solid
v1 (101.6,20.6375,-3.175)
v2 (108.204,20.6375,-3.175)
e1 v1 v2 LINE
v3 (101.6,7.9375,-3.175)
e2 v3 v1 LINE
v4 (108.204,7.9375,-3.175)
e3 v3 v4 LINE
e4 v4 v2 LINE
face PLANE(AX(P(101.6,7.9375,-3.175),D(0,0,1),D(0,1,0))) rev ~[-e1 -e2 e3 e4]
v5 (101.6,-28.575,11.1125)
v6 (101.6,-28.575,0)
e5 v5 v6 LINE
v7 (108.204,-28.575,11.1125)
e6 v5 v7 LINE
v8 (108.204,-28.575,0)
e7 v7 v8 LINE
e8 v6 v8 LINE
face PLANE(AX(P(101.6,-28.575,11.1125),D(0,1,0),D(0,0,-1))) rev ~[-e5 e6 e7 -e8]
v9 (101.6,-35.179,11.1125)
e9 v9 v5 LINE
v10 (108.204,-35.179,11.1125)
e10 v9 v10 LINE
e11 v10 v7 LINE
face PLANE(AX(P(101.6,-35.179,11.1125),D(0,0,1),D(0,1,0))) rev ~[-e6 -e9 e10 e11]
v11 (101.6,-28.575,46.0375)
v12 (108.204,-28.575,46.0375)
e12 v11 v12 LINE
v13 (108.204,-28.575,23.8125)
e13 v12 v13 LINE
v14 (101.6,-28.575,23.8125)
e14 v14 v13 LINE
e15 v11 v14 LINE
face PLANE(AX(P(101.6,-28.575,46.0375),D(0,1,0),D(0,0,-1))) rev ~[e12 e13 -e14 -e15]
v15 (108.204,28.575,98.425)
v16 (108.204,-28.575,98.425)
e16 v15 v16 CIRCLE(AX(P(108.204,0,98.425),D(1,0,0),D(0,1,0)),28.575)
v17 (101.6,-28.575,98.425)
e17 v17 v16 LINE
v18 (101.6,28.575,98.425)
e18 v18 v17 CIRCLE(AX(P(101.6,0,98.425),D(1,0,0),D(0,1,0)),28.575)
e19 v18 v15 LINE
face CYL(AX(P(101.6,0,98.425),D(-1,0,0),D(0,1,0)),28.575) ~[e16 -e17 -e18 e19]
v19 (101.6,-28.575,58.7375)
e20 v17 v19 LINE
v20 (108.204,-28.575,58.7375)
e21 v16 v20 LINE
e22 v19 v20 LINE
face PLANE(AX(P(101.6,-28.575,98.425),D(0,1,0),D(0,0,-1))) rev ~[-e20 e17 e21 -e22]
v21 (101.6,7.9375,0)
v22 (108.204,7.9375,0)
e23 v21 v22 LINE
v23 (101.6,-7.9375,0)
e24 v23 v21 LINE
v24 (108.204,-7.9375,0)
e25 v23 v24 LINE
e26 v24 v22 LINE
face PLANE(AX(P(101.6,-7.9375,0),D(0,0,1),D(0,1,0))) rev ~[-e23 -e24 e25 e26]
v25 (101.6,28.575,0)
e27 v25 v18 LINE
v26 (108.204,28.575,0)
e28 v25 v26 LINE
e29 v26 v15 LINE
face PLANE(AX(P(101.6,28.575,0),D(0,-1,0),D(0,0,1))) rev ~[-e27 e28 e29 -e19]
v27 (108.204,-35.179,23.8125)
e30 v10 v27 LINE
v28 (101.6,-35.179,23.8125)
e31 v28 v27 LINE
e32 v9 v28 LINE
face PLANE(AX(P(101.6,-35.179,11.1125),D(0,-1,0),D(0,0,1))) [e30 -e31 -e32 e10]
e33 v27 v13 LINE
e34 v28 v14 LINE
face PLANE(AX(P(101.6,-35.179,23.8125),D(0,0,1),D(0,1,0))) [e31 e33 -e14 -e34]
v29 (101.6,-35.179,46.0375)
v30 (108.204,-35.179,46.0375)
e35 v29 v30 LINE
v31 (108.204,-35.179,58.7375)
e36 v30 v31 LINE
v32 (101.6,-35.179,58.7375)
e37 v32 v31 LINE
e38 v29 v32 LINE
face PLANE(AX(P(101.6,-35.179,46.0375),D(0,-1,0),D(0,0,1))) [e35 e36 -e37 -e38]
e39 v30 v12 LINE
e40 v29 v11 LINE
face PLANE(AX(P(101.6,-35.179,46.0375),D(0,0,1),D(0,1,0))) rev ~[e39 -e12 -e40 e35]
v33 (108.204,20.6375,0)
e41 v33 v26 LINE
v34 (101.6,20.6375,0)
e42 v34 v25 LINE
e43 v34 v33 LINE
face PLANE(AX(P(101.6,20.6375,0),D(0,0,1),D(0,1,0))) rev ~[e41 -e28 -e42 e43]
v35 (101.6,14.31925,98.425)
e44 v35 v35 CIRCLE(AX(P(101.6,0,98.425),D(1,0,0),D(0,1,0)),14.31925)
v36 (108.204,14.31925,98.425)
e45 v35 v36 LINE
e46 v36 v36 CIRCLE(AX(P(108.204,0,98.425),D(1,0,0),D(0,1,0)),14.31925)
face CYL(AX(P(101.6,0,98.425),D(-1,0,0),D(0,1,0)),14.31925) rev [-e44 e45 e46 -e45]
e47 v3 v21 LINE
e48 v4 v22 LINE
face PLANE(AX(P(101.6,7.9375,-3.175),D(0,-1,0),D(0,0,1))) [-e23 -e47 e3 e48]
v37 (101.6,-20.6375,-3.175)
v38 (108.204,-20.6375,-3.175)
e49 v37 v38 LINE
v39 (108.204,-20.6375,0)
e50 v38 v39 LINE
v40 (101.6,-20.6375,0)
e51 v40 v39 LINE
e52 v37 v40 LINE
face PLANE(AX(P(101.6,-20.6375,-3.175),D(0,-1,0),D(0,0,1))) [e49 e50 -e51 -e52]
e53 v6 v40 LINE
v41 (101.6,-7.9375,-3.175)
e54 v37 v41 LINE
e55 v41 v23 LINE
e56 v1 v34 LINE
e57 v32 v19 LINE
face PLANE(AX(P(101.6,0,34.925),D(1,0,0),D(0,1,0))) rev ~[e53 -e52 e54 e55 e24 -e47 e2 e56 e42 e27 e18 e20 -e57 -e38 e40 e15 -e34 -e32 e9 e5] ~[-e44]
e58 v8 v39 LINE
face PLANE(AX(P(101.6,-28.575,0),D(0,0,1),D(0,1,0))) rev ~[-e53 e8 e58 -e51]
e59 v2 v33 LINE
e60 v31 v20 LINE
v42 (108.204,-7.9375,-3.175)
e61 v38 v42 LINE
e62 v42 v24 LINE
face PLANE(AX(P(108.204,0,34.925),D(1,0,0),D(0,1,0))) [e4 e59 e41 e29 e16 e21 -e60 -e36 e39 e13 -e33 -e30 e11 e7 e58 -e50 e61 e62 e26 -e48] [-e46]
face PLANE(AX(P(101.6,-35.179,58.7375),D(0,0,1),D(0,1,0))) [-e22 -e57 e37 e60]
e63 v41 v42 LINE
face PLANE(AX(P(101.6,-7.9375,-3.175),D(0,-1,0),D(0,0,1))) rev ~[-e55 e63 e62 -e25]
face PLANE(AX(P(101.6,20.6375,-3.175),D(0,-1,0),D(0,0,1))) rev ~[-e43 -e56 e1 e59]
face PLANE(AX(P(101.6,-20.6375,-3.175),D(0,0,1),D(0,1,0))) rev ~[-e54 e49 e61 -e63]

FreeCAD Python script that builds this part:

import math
import FreeCAD as App
import Part
import Sketcher
Q = App.Units.Quantity

doc = App.newDocument("Part")
body = doc.addObject("PartDesign::Body", "Body")

sketch1 = body.newObject("Sketcher::SketchObject", "Sketch")
sketch1.AttachmentSupport = (doc.getObject("YZ_Plane"), [""])
sketch1.MapMode = "FlatFace"
sketch1.AttachmentOffset = App.Placement(App.Vector(0, 0, 4 * 25.4), App.Rotation())
sketch1.addGeometry([
    Part.LineSegment(App.Vector(28.6, 0, 0), App.Vector(28.6, 98.4, 0)),
    Part.ArcOfCircle(Part.Circle(App.Vector(0, 98.4, 0), App.Vector(0, 0, 1), 28.6), math.radians(0), math.radians(180)),
    Part.LineSegment(App.Vector(-28.6, 98.4, 0), App.Vector(-28.6, 58.7, 0)),
    Part.LineSegment(App.Vector(-28.6, 58.7, 0), App.Vector(-35.2, 58.7, 0)),
    Part.LineSegment(App.Vector(-35.2, 58.7, 0), App.Vector(-35.2, 46, 0)),
    Part.LineSegment(App.Vector(-35.2, 46, 0), App.Vector(-28.6, 46, 0)),
    Part.LineSegment(App.Vector(-28.6, 46, 0), App.Vector(-28.6, 23.8, 0)),
    Part.LineSegment(App.Vector(-28.6, 23.8, 0), App.Vector(-35.2, 23.8, 0)),
    Part.LineSegment(App.Vector(-35.2, 23.8, 0), App.Vector(-35.2, 11.1, 0)),
    Part.LineSegment(App.Vector(-35.2, 11.1, 0), App.Vector(-28.6, 11.1, 0)),
    Part.LineSegment(App.Vector(-28.6, 11.1, 0), App.Vector(-28.6, 0, 0)),
    Part.LineSegment(App.Vector(-28.6, 0, 0), App.Vector(-20.6, 0, 0)),
    Part.LineSegment(App.Vector(-20.6, 0, 0), App.Vector(-20.6, -3.2, 0)),
    Part.LineSegment(App.Vector(-20.6, -3.2, 0), App.Vector(-7.9, -3.2, 0)),
    Part.LineSegment(App.Vector(-7.9, -3.2, 0), App.Vector(-7.9, 0, 0)),
    Part.LineSegment(App.Vector(-7.9, 0, 0), App.Vector(7.9, 0, 0)),
    Part.LineSegment(App.Vector(7.9, 0, 0), App.Vector(7.9, -3.2, 0)),
    Part.LineSegment(App.Vector(7.9, -3.2, 0), App.Vector(20.6, -3.2, 0)),
    Part.LineSegment(App.Vector(20.6, -3.2, 0), App.Vector(20.6, 0, 0)),
    Part.LineSegment(App.Vector(20.6, 0, 0), App.Vector(28.6, 0, 0)),
    Part.Circle(App.Vector(0, 98.4, 0), App.Vector(0, 0, 1), 14.3),
], False)
sketch1.addConstraint([
    Sketcher.Constraint("Tangent", 0, 2, 1, 1),
    Sketcher.Constraint("Tangent", 1, 2, 2, 1),
    Sketcher.Constraint("Coincident", 2, 2, 3, 1),
    Sketcher.Constraint("Coincident", 3, 2, 4, 1),
    Sketcher.Constraint("Coincident", 4, 2, 5, 1),
    Sketcher.Constraint("Coincident", 5, 2, 6, 1),
    Sketcher.Constraint("Coincident", 6, 2, 7, 1),
    Sketcher.Constraint("Coincident", 7, 2, 8, 1),
    Sketcher.Constraint("Coincident", 8, 2, 9, 1),
    Sketcher.Constraint("Coincident", 9, 2, 10, 1),
    Sketcher.Constraint("Coincident", 10, 2, 11, 1),
    Sketcher.Constraint("Coincident", 11, 2, 12, 1),
    Sketcher.Constraint("Coincident", 12, 2, 13, 1),
    Sketcher.Constraint("Coincident", 13, 2, 14, 1),
    Sketcher.Constraint("Coincident", 14, 2, 15, 1),
    Sketcher.Constraint("Coincident", 15, 2, 16, 1),
    Sketcher.Constraint("Coincident", 16, 2, 17, 1),
    Sketcher.Constraint("Coincident", 17, 2, 18, 1),
    Sketcher.Constraint("Coincident", 18, 2, 19, 1),
    Sketcher.Constraint("Coincident", 19, 2, 0, 1),
    Sketcher.Constraint("Vertical", 0),
    Sketcher.Constraint("Vertical", 2),
    Sketcher.Constraint("Horizontal", 3),
    Sketcher.Constraint("Vertical", 4),
    Sketcher.Constraint("Horizontal", 5),
    Sketcher.Constraint("Vertical", 6),
    Sketcher.Constraint("Horizontal", 7),
    Sketcher.Constraint("Vertical", 8),
    Sketcher.Constraint("Horizontal", 9),
    Sketcher.Constraint("Vertical", 10),
    Sketcher.Constraint("Horizontal", 11),
    Sketcher.Constraint("Vertical", 12),
    Sketcher.Constraint("Horizontal", 13),
    Sketcher.Constraint("Vertical", 14),
    Sketcher.Constraint("Horizontal", 15),
    Sketcher.Constraint("Vertical", 16),
    Sketcher.Constraint("Horizontal", 17),
    Sketcher.Constraint("Vertical", 18),
    Sketcher.Constraint("Horizontal", 19),
    Sketcher.Constraint("Coincident", 20, 3, 1, 3),
    Sketcher.Constraint("Symmetric", 14, 2, 15, 2, -1, 1),
    Sketcher.Constraint("Symmetric", 11, 2, 18, 2, -1, 1),
    Sketcher.Constraint("Symmetric", 10, 2, 19, 2, -2),
    Sketcher.Constraint("PointOnObject", 1, 3, -2),
    Sketcher.Constraint("Horizontal", 13, 2, 16, 2),
    Sketcher.Constraint("Vertical", 2, 2, 5, 2),
    Sketcher.Constraint("Vertical", 4, 2, 7, 2),
    Sketcher.Constraint("Equal", 17, 4),
    Sketcher.Constraint("Equal", 4, 8),
    Sketcher.Constraint("DistanceX", 13, 1, 13, 2, Q("0.5 in")),
    Sketcher.Constraint("Radius", 1, Q("1.125 in")),
    Sketcher.Constraint("Diameter", 20, Q("1.1275 in")),
    Sketcher.Constraint("DistanceX", 3, 2, 3, 1, Q("0.26 in")),
    Sketcher.Constraint("DistanceX", 11, 1, 11, 2, Q("0.3125 in")),
    Sketcher.Constraint("DistanceY", 0, 1, 0, 2, Q("3.875 in")),
    Sketcher.Constraint("DistanceY", 2, 2, 2, 1, Q("1.5625 in")),
    Sketcher.Constraint("DistanceY", 6, 2, 6, 1, Q("0.875 in")),
    Sketcher.Constraint("DistanceY", 12, 2, 12, 1, Q("0.125 in")),
])
pad1 = body.newObject("PartDesign::Pad", "Pad")
pad1.Profile = sketch1
pad1.Length = Q("0.26 in")

doc.recompute()
